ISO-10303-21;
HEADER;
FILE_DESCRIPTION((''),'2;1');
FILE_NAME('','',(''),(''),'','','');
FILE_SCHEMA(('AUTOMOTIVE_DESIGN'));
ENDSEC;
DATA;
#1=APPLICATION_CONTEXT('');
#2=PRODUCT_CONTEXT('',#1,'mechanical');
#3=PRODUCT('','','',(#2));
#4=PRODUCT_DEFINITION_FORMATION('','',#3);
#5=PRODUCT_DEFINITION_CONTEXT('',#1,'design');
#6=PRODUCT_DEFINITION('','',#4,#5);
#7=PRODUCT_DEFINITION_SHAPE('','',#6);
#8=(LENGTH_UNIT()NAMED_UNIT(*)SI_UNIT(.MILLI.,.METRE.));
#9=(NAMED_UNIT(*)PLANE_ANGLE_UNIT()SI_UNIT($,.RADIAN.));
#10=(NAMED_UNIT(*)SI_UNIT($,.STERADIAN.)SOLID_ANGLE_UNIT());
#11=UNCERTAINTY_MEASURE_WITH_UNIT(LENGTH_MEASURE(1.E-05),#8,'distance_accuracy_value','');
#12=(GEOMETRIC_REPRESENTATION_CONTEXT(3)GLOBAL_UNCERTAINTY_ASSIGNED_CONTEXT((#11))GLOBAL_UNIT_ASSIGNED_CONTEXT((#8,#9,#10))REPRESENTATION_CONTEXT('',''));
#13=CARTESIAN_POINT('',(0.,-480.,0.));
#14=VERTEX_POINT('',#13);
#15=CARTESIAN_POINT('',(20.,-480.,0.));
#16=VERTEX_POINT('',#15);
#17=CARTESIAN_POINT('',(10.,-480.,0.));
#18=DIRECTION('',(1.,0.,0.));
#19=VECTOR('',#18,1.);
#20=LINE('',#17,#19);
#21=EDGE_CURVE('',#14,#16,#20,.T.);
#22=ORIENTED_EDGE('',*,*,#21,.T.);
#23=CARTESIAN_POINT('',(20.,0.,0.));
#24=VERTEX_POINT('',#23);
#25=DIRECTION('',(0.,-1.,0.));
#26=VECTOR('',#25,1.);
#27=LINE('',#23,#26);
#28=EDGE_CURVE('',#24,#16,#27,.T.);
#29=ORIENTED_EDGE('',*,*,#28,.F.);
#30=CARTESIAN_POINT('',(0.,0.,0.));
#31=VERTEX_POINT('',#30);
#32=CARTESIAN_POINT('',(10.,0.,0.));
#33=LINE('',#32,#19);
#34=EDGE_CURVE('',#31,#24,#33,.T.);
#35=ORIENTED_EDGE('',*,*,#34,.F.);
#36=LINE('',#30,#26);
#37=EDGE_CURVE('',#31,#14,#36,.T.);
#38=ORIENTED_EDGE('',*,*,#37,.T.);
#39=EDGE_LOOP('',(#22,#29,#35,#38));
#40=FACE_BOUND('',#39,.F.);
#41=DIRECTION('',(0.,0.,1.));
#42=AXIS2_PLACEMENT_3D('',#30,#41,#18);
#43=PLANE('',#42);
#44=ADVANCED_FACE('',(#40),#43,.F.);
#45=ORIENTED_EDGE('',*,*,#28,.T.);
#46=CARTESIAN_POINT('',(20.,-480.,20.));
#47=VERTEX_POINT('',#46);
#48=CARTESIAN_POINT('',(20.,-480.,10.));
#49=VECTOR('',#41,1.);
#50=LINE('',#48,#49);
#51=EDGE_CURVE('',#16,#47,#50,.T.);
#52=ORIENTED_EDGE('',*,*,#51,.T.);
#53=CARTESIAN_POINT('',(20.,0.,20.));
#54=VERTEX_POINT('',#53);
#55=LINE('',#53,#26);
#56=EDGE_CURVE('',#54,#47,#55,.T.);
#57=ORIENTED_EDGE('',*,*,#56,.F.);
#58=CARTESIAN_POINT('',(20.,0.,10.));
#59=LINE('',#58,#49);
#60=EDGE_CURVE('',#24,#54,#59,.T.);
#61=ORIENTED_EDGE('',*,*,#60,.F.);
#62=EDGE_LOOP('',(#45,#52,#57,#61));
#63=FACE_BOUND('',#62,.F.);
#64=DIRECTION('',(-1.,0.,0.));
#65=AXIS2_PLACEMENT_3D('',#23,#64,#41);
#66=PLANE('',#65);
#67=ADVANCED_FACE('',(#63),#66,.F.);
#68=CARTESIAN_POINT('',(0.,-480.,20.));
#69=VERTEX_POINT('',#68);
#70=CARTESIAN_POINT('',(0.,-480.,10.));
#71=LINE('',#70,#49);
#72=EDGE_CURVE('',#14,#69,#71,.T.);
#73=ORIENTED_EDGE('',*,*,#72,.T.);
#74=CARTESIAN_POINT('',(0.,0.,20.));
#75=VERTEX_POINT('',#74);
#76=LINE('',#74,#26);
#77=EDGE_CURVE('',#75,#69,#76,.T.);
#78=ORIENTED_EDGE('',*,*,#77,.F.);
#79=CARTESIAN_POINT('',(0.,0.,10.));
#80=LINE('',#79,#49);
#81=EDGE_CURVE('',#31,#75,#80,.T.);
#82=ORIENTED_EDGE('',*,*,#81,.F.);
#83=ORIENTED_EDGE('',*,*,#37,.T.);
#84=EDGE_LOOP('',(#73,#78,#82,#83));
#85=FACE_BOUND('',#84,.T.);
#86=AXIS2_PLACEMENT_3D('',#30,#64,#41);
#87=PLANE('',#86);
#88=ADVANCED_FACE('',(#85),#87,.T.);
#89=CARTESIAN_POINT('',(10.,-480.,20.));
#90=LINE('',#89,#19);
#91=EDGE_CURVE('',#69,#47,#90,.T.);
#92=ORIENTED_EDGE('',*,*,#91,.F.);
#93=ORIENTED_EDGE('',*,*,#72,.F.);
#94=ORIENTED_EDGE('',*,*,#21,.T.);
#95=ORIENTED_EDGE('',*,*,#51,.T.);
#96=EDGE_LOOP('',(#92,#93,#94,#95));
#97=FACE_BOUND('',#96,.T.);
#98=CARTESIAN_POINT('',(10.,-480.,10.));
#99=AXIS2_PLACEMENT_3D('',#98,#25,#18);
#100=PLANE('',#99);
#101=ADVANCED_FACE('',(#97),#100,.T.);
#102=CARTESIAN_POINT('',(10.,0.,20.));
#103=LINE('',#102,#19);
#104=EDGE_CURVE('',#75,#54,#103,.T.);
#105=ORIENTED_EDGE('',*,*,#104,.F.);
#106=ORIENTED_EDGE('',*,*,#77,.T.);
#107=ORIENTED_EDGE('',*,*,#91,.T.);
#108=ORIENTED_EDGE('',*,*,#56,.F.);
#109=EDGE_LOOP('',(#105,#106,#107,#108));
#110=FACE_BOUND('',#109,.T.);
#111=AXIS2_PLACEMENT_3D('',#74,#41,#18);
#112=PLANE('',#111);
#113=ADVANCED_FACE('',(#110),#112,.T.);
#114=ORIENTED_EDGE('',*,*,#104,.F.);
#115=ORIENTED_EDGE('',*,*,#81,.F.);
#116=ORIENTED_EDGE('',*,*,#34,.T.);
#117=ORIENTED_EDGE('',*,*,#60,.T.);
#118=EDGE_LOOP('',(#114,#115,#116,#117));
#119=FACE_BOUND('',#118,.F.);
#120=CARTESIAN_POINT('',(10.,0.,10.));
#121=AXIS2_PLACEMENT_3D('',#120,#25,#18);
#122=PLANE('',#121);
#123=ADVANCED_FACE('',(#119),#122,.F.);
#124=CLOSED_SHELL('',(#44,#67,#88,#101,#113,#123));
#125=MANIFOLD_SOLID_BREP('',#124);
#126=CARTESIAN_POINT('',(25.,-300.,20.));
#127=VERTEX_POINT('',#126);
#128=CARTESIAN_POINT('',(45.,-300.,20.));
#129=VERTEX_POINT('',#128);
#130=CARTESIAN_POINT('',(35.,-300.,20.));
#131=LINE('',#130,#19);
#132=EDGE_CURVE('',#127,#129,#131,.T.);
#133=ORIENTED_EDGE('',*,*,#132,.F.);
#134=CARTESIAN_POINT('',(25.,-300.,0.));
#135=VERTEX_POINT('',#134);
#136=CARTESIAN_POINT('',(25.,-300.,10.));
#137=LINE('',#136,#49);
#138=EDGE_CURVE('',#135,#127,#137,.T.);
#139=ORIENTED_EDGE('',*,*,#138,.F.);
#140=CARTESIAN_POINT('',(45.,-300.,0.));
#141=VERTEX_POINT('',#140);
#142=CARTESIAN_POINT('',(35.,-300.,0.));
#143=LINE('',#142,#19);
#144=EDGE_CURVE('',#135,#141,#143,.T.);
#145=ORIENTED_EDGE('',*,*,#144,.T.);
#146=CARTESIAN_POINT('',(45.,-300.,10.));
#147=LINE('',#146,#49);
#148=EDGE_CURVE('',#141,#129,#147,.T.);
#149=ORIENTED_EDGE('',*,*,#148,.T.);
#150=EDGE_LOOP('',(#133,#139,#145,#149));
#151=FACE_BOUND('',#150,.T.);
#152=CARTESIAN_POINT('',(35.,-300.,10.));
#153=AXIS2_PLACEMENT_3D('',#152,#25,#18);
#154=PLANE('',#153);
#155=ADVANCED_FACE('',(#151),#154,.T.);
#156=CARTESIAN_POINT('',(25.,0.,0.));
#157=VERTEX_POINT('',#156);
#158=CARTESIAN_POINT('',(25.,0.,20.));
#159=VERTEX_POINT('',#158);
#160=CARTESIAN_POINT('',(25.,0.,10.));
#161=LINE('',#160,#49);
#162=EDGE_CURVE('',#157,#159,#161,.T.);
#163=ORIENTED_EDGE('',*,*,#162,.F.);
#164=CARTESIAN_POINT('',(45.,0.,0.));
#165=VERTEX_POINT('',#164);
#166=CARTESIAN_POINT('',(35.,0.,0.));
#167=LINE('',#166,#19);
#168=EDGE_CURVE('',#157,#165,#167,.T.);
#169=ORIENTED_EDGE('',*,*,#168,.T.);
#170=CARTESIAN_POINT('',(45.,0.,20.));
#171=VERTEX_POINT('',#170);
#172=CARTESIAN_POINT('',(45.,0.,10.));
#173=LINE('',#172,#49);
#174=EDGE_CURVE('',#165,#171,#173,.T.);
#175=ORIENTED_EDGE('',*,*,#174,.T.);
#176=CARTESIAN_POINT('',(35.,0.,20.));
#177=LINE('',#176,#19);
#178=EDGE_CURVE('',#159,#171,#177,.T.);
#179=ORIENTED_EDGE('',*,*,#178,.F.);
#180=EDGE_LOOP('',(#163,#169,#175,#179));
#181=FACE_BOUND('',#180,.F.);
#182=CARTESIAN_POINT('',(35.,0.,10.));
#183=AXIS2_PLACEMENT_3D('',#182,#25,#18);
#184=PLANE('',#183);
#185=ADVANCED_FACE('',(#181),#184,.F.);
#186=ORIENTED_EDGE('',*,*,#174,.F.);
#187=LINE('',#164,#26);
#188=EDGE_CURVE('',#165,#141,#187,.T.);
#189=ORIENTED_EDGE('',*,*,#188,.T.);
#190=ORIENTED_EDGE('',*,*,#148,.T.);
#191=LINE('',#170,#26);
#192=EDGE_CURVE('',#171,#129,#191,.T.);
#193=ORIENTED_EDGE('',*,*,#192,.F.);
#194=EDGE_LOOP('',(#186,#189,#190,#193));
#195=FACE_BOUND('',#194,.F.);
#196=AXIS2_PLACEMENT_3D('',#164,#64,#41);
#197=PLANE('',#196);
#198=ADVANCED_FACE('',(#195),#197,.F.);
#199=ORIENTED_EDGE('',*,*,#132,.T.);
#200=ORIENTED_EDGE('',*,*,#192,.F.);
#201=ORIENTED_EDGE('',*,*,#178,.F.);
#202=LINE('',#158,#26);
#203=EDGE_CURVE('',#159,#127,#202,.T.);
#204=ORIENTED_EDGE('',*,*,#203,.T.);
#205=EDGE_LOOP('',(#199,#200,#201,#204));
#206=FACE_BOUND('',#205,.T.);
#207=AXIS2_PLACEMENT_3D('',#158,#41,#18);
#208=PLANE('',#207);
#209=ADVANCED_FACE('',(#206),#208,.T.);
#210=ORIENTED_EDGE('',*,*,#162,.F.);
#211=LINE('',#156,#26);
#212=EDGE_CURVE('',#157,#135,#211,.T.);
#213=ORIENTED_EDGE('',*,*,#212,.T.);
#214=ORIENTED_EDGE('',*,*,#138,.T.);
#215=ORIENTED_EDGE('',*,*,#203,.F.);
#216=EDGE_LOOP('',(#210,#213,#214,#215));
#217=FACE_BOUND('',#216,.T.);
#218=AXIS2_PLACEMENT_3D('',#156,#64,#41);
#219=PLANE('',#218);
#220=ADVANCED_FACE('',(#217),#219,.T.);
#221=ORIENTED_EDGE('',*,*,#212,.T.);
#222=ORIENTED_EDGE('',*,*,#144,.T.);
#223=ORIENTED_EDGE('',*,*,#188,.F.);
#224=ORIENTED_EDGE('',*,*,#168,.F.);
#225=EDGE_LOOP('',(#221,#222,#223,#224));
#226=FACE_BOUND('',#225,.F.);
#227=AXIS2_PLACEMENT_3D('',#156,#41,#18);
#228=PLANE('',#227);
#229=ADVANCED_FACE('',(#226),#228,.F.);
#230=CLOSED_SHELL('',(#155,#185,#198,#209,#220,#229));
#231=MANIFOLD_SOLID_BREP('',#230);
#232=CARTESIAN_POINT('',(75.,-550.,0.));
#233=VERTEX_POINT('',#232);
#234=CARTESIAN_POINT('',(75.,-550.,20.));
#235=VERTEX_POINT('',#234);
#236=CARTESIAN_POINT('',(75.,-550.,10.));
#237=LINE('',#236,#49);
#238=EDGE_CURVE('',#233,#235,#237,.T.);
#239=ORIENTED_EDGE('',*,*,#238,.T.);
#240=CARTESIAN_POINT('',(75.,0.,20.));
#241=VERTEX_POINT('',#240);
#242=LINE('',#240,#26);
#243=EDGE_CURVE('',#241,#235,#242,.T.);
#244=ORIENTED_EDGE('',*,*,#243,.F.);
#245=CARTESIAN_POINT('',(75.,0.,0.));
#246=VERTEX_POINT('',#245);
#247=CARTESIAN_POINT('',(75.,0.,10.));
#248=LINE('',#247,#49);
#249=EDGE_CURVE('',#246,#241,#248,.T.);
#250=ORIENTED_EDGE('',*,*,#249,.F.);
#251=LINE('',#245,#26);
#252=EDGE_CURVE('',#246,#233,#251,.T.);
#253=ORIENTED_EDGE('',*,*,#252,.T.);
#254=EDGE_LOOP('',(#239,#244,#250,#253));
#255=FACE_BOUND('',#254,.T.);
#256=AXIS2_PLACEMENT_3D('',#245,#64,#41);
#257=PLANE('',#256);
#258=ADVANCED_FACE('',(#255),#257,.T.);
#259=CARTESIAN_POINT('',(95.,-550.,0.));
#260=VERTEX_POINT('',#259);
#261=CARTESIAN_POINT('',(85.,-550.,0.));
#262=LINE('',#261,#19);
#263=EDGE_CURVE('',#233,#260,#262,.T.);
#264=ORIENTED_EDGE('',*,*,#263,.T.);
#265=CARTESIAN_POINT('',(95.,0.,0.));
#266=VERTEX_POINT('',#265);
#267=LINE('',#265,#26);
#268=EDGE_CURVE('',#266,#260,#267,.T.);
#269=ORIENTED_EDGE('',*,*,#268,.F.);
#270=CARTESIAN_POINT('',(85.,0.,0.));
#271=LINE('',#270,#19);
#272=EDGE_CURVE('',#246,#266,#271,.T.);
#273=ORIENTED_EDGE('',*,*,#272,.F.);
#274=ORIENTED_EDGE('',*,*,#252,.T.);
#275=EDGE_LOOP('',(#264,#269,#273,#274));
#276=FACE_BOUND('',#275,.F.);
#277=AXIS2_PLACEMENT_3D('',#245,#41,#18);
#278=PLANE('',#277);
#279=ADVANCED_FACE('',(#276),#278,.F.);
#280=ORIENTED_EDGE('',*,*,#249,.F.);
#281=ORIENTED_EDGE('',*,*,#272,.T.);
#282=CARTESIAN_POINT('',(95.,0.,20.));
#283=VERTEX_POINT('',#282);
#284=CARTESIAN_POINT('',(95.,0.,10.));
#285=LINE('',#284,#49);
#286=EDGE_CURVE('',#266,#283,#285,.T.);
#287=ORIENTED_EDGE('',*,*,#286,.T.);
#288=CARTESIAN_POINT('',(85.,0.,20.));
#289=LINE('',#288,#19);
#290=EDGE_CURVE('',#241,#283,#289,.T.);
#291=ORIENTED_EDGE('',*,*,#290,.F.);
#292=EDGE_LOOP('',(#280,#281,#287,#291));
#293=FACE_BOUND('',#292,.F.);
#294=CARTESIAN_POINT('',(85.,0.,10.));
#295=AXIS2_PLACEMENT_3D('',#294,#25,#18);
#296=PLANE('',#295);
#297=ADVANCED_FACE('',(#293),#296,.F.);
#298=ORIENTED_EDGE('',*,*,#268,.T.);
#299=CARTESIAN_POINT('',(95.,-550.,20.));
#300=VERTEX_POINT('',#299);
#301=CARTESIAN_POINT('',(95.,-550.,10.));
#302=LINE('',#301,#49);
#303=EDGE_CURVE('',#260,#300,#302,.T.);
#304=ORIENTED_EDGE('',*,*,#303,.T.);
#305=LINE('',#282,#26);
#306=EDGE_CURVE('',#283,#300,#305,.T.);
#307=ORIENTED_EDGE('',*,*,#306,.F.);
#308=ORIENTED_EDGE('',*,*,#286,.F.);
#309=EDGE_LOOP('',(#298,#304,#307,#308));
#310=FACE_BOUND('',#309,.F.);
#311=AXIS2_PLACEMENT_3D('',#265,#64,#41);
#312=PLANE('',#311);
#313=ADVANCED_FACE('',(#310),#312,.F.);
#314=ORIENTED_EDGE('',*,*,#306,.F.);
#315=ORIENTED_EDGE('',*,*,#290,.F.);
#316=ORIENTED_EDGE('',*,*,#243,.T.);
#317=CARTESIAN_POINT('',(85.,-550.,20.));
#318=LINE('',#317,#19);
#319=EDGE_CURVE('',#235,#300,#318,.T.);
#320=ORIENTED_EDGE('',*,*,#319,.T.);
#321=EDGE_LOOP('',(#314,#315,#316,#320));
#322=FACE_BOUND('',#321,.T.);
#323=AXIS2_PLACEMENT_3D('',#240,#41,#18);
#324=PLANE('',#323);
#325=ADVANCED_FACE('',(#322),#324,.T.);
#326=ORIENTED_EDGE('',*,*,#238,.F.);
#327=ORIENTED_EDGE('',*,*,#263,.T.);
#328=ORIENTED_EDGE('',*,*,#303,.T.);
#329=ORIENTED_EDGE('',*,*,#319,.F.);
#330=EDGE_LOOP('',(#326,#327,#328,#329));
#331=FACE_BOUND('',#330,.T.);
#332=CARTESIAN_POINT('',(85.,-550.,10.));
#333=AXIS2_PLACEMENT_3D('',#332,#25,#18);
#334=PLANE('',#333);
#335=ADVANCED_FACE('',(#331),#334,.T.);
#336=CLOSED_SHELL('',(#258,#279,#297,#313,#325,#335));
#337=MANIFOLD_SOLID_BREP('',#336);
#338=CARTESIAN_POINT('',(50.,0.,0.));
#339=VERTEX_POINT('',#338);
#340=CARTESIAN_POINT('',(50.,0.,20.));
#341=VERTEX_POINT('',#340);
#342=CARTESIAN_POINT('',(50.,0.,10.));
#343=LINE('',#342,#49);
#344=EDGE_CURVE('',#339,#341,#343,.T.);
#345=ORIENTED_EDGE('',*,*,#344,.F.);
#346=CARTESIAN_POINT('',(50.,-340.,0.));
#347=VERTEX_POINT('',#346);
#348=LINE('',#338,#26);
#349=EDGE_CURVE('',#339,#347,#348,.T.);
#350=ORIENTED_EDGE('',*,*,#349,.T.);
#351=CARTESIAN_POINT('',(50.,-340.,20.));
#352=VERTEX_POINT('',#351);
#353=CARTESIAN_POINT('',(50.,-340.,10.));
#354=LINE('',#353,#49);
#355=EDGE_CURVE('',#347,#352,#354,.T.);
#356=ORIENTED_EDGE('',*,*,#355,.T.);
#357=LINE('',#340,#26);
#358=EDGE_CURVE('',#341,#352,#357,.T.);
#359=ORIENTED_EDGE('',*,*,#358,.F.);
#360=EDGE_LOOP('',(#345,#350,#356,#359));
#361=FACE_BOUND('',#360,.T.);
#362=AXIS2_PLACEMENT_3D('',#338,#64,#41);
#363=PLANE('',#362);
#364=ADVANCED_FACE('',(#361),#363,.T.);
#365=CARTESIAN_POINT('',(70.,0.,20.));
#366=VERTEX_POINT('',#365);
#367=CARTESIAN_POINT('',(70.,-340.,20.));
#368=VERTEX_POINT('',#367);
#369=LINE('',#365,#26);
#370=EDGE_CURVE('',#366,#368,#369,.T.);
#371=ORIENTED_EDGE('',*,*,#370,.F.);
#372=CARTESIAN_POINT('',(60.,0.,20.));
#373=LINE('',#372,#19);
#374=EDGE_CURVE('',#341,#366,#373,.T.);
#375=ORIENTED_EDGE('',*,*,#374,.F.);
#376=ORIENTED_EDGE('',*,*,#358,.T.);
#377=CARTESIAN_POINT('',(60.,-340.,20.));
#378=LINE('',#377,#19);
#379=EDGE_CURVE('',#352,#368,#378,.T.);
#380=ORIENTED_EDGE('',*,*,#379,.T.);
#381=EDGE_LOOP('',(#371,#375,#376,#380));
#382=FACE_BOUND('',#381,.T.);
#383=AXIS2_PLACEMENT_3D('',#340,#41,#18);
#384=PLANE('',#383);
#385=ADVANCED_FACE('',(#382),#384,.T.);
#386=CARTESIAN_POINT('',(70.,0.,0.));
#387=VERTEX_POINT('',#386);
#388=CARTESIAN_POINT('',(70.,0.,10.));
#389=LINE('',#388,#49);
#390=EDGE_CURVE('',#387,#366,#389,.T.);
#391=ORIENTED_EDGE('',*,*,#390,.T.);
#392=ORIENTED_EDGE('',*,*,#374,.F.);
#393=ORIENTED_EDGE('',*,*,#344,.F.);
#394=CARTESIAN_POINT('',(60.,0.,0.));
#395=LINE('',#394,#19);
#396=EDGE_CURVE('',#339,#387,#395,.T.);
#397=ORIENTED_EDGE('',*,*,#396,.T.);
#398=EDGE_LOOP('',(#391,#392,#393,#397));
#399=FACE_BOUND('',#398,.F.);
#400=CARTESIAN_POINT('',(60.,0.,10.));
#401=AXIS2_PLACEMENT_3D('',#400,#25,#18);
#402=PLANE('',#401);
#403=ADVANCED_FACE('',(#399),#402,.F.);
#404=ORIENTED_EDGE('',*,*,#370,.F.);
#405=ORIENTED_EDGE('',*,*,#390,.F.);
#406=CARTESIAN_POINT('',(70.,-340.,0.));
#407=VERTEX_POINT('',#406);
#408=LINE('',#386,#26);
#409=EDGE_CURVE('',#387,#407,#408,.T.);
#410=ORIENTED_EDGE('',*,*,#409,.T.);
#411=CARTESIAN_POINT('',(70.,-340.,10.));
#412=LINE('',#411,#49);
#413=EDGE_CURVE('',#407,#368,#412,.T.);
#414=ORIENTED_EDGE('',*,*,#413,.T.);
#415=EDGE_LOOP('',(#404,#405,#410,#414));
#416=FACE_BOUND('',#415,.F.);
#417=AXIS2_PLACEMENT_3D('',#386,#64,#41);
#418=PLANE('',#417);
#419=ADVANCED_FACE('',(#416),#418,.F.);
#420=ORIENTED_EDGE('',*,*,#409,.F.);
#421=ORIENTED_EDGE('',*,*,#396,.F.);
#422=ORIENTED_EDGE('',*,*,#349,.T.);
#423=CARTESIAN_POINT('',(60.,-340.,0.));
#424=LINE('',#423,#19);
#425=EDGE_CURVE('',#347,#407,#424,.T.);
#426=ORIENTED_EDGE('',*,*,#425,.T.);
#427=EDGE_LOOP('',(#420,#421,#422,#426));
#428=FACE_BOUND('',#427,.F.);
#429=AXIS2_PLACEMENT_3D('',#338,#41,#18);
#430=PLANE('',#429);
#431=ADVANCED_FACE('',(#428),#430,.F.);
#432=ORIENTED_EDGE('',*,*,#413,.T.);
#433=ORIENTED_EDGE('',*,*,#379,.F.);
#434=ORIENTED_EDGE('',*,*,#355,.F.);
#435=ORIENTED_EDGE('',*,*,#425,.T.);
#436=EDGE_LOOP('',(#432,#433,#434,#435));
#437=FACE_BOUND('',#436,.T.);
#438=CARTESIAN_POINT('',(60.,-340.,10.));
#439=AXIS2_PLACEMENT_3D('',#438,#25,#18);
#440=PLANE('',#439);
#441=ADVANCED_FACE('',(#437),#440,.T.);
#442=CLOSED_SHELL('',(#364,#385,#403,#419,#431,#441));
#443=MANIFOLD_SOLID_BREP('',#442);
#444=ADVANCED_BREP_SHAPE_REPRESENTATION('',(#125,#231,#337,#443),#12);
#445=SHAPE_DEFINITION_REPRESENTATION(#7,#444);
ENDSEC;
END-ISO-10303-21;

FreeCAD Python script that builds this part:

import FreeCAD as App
import Part
import Sketcher
Q = App.Units.Quantity


def add_polygon(sketch, points):
    """Adds a closed chain of lines whose ends are joined by coincident constraints."""
    first, n = sketch.GeometryCount, len(points)
    for a, b in zip(points, points[1:] + points[:1]):
        sketch.addGeometry(Part.LineSegment(App.Vector(*a, 0), App.Vector(*b, 0)), False)
    for i in range(n):
        sketch.addConstraint(Sketcher.Constraint("Coincident", first + i, 2, first + (i + 1) % n, 1))

doc = App.newDocument("Part")
params = doc.addObject("Spreadsheet::Sheet", "Params")
for row, (alias, value) in enumerate([
    ("sketch1_width", "20 mm"),
    ("pad1_length", "480 mm"),
    ("sketch2_width", "20 mm"),
    ("pad2_length", "300 mm"),
    ("sketch3_width", "20 mm"),
    ("pad3_length", "340 mm"),
    ("sketch4_width", "20 mm"),
    ("pad4_length", "550 mm"),
], start=1):
    params.set(f"A{row}", alias)
    params.set(f"B{row}", "=" + value)
    params.setAlias(f"B{row}", alias)

body = doc.addObject("PartDesign::Body", "Body")

# Sketch on XZ plane
sketch1 = body.newObject("Sketcher::SketchObject", "Sketch")
sketch1.AttachmentSupport = (doc.getObject("XZ_Plane"), [""])
sketch1.MapMode = "FlatFace"
add_polygon(sketch1, [(0, 20), (0, 0), (20, 0), (20, 20)])  # lines 0-3
sketch1.addConstraint([
    Sketcher.Constraint("Vertical", 0),
    Sketcher.Constraint("Horizontal", 1),
    Sketcher.Constraint("Vertical", 2),
    Sketcher.Constraint("Horizontal", 3),
    Sketcher.Constraint("Coincident", 0, 2, -1, 1),
    Sketcher.Constraint("Equal", 3, 0),
    Sketcher.Constraint("DistanceX", 1, 1, 1, 2, Q("20 mm")),
])
sketch1.setExpression("Constraints[10]", "Params.sketch1_width")
pad1 = body.newObject("PartDesign::Pad", "Pad")
pad1.Profile = sketch1
pad1.setExpression("Length", "Params.pad1_length")
body2 = doc.addObject("PartDesign::Body", "Body001")

# Sketch on XZ plane
sketch2 = body2.newObject("Sketcher::SketchObject", "Sketch001")
sketch2.AttachmentSupport = (doc.getObject("XZ_Plane001"), [""])
sketch2.MapMode = "FlatFace"
add_polygon(sketch2, [(25, 20), (25, 0), (45, 0), (45, 20)])  # lines 0-3
sketch2.addConstraint([
    Sketcher.Constraint("Vertical", 0),
    Sketcher.Constraint("Horizontal", 1),
    Sketcher.Constraint("Vertical", 2),
    Sketcher.Constraint("Horizontal", 3),
    Sketcher.Constraint("PointOnObject", 0, 2, -1),
    Sketcher.Constraint("Equal", 3, 0),
    Sketcher.Constraint("DistanceX", 1, 1, 1, 2, Q("20 mm")),
    Sketcher.Constraint("DistanceX", -1, 1, 0, 2, Q("25 mm")),
])
sketch2.setExpression("Constraints[10]", "Params.sketch2_width")
pad2 = body2.newObject("PartDesign::Pad", "Pad001")
pad2.Profile = sketch2
pad2.setExpression("Length", "Params.pad2_length")
body3 = doc.addObject("PartDesign::Body", "Body002")

# Sketch on XZ plane
sketch3 = body3.newObject("Sketcher::SketchObject", "Sketch002")
sketch3.AttachmentSupport = (doc.getObject("XZ_Plane002"), [""])
sketch3.MapMode = "FlatFace"
add_polygon(sketch3, [(50, 20), (50, 0), (70, 0), (70, 20)])  # lines 0-3
sketch3.addConstraint([
    Sketcher.Constraint("Vertical", 0),
    Sketcher.Constraint("Horizontal", 1),
    Sketcher.Constraint("Vertical", 2),
    Sketcher.Constraint("Horizontal", 3),
    Sketcher.Constraint("PointOnObject", 0, 2, -1),
    Sketcher.Constraint("Equal", 3, 0),
    Sketcher.Constraint("DistanceX", 1, 1, 1, 2, Q("20 mm")),
    Sketcher.Constraint("DistanceX", -1, 1, 0, 2, Q("50 mm")),
])
sketch3.setExpression("Constraints[10]", "Params.sketch3_width")
pad3 = body3.newObject("PartDesign::Pad", "Pad002")
pad3.Profile = sketch3
pad3.setExpression("Length", "Params.pad3_length")
body4 = doc.addObject("PartDesign::Body", "Body003")

# Sketch on XZ plane
sketch4 = body4.newObject("Sketcher::SketchObject", "Sketch003")
sketch4.AttachmentSupport = (doc.getObject("XZ_Plane003"), [""])
sketch4.MapMode = "FlatFace"
add_polygon(sketch4, [(75, 20), (75, 0), (95, 0), (95, 20)])  # lines 0-3
sketch4.addConstraint([
    Sketcher.Constraint("Vertical", 0),
    Sketcher.Constraint("Horizontal", 1),
    Sketcher.Constraint("Vertical", 2),
    Sketcher.Constraint("Horizontal", 3),
    Sketcher.Constraint("PointOnObject", 0, 2, -1),
    Sketcher.Constraint("Equal", 3, 0),
    Sketcher.Constraint("DistanceX", 1, 1, 1, 2, Q("20 mm")),
    Sketcher.Constraint("DistanceX", -1, 1, 0, 2, Q("75 mm")),
])
sketch4.setExpression("Constraints[10]", "Params.sketch4_width")
pad4 = body4.newObject("PartDesign::Pad", "Pad003")
pad4.Profile = sketch4
pad4.setExpression("Length", "Params.pad4_length")

doc.recompute()
